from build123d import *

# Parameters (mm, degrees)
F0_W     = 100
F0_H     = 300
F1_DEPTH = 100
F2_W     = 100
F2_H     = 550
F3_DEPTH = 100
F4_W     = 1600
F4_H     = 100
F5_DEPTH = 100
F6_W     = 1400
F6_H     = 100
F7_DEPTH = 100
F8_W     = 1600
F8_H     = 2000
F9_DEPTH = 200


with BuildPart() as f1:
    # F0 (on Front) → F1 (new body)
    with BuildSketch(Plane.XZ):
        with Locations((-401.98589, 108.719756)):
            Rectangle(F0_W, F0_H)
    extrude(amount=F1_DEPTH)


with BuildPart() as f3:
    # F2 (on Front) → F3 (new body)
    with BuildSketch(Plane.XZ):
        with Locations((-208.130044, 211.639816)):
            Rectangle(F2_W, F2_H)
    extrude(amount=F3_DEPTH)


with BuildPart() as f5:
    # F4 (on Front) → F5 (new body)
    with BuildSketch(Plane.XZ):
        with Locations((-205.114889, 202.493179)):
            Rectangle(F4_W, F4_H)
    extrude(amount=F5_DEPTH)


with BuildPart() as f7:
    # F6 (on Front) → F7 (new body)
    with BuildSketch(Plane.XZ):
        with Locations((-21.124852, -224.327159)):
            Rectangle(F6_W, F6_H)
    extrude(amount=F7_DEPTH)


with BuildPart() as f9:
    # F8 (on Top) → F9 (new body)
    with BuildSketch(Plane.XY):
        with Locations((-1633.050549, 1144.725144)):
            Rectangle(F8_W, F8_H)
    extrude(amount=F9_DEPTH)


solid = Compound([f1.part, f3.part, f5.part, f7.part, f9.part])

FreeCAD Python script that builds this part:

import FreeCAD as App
import Part
import Sketcher
from FreeCAD import Vector
Q = App.Units.Quantity


def add_polygon(sketch, points):
    """Adds a closed chain of lines whose ends are joined by coincident constraints."""
    first, n = sketch.GeometryCount, len(points)
    for a, b in zip(points, points[1:] + points[:1]):
        sketch.addGeometry(Part.LineSegment(App.Vector(*a, 0), App.Vector(*b, 0)), False)
    for i in range(n):
        sketch.addConstraint(Sketcher.Constraint("Coincident", first + i, 2, first + (i + 1) % n, 1))

doc = App.newDocument("Part")
body = doc.addObject("PartDesign::Body", "Body")

sketch1 = body.newObject("Sketcher::SketchObject", "Sketch")
sketch1.AttachmentSupport = (doc.getObject("XZ_Plane"), [""])
sketch1.MapMode = "FlatFace"
add_polygon(sketch1, [(-452, 259), (-452, -41), (-352, -41), (-352, 259)])
sketch1.addConstraint([
    Sketcher.Constraint("Vertical", 0),
    Sketcher.Constraint("Horizontal", 1),
    Sketcher.Constraint("Vertical", 2),
    Sketcher.Constraint("Horizontal", 3),
    Sketcher.Constraint("DistanceX", 1, 1, 1, 2, Q("100 mm")),
    Sketcher.Constraint("DistanceY", 0, 2, 0, 1, Q("300 mm")),
    Sketcher.Constraint("DistanceX", 0, 2, -1, 1, Q("451.98589 mm")),
    Sketcher.Constraint("DistanceY", 0, 2, -1, 1, Q("41.280244 mm")),
])
pad1 = body.newObject("PartDesign::Pad", "Pad")
pad1.Profile = sketch1
pad1.Length = 100
body2 = doc.addObject("PartDesign::Body", "Body001")

sketch2 = body2.newObject("Sketcher::SketchObject", "Sketch001")
sketch2.AttachmentSupport = (doc.getObject("XZ_Plane001"), [""])
sketch2.MapMode = "FlatFace"
add_polygon(sketch2, [(-258, 487), (-258, -63), (-158, -63), (-158, 487)])
sketch2.addConstraint([
    Sketcher.Constraint("Vertical", 0),
    Sketcher.Constraint("Horizontal", 1),
    Sketcher.Constraint("Vertical", 2),
    Sketcher.Constraint("Horizontal", 3),
    Sketcher.Constraint("DistanceX", 1, 1, 1, 2, Q("100 mm")),
    Sketcher.Constraint("DistanceY", 0, 2, 0, 1, Q("550 mm")),
    Sketcher.Constraint("DistanceX", 0, 2, -1, 1, Q("258.130044 mm")),
    Sketcher.Constraint("DistanceY", 0, 2, -1, 1, Q("63.360184 mm")),
])
pad2 = body2.newObject("PartDesign::Pad", "Pad001")
pad2.Profile = sketch2
pad2.Length = 100
body3 = doc.addObject("PartDesign::Body", "Body002")

sketch3 = body3.newObject("Sketcher::SketchObject", "Sketch002")
sketch3.AttachmentSupport = (doc.getObject("XZ_Plane002"), [""])
sketch3.MapMode = "FlatFace"
add_polygon(sketch3, [(-1005, 252), (-1005, 152), (595, 152), (595, 252)])
sketch3.addConstraint([
    Sketcher.Constraint("Vertical", 0),
    Sketcher.Constraint("Horizontal", 1),
    Sketcher.Constraint("Vertical", 2),
    Sketcher.Constraint("Horizontal", 3),
    Sketcher.Constraint("DistanceX", 1, 1, 1, 2, Q("1600 mm")),
    Sketcher.Constraint("DistanceY", 0, 2, 0, 1, Q("100 mm")),
    Sketcher.Constraint("DistanceX", 0, 2, -1, 1, Q("1005.114889 mm")),
    Sketcher.Constraint("DistanceY", -1, 1, 0, 2, Q("152.493179 mm")),
])
pad3 = body3.newObject("PartDesign::Pad", "Pad002")
pad3.Profile = sketch3
pad3.Length = 100
body4 = doc.addObject("PartDesign::Body", "Body003")

sketch4 = body4.newObject("Sketcher::SketchObject", "Sketch003")
sketch4.AttachmentSupport = (doc.getObject("XZ_Plane003"), [""])
sketch4.MapMode = "FlatFace"
add_polygon(sketch4, [(-721, -174), (-721, -274), (679, -274), (679, -174)])
sketch4.addConstraint([
    Sketcher.Constraint("Vertical", 0),
    Sketcher.Constraint("Horizontal", 1),
    Sketcher.Constraint("Vertical", 2),
    Sketcher.Constraint("Horizontal", 3),
    Sketcher.Constraint("DistanceX", 1, 1, 1, 2, Q("1400 mm")),
    Sketcher.Constraint("DistanceY", 0, 2, 0, 1, Q("100 mm")),
    Sketcher.Constraint("DistanceX", 0, 2, -1, 1, Q("721.124852 mm")),
    Sketcher.Constraint("DistanceY", 0, 2, -1, 1, Q("274.327159 mm")),
])
pad4 = body4.newObject("PartDesign::Pad", "Pad003")
pad4.Profile = sketch4
pad4.Length = 100
body5 = doc.addObject("PartDesign::Body", "Body004")

sketch5 = body5.newObject("Sketcher::SketchObject", "Sketch004")
sketch5.AttachmentSupport = (doc.getObject("XY_Plane004"), [""])
sketch5.MapMode = "FlatFace"
add_polygon(sketch5, [(-2433, 2145), (-2433, 145), (-833, 145), (-833, 2145)])
sketch5.addConstraint([
    Sketcher.Constraint("Vertical", 0),
    Sketcher.Constraint("Horizontal", 1),
    Sketcher.Constraint("Vertical", 2),
    Sketcher.Constraint("Horizontal", 3),
    Sketcher.Constraint("DistanceX", 1, 1, 1, 2, Q("1600 mm")),
    Sketcher.Constraint("DistanceY", 0, 2, 0, 1, Q("2000 mm")),
    Sketcher.Constraint("DistanceX", 0, 2, -1, 1, Q("2433.050549 mm")),
    Sketcher.Constraint("DistanceY", -1, 1, 0, 2, Q("144.725144 mm")),
])
pad5 = body5.newObject("PartDesign::Pad", "Pad004")
pad5.Profile = sketch5
pad5.Length = 200

doc.recompute()
